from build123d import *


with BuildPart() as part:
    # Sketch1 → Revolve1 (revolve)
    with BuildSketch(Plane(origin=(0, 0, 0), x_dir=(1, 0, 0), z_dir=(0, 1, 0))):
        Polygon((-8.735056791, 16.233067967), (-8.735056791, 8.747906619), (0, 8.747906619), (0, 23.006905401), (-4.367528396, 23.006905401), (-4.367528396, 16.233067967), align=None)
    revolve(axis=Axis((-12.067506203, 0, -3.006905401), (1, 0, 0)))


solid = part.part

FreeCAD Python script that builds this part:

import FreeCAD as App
import Part
import Sketcher

V = App.Vector
Q = App.Units.Quantity


def add_polygon(sketch, points):
    """Adds a closed chain of lines whose ends are joined by coincident constraints."""
    first, n = sketch.GeometryCount, len(points)
    for a, b in zip(points, points[1:] + points[:1]):
        sketch.addGeometry(Part.LineSegment(App.Vector(*a, 0), App.Vector(*b, 0)), False)
    for i in range(n):
        sketch.addConstraint(Sketcher.Constraint("Coincident", first + i, 2, first + (i + 1) % n, 1))

doc = App.newDocument("Part")
body = doc.addObject("PartDesign::Body", "Body")

sketch1 = doc.addObject("Sketcher::SketchObject", "Sketch")
body.addObject(sketch1)
sketch1.AttachmentSupport = (doc.XZ_Plane, [""])
sketch1.MapMode = "FlatFace"
add_polygon(sketch1, [(-8.7, -16.2), (-8.7, -8.7), (0, -8.7), (0, -23), (-4.4, -23), (-4.4, -16.2)])
sketch1.addGeometry(Part.LineSegment(V(-8.7, -3, 0), V(0, -3, 0)), True)
sketch1.addConstraint([
    Sketcher.Constraint("Vertical", 0),
    Sketcher.Constraint("Horizontal", 1),
    Sketcher.Constraint("Vertical", 2),
    Sketcher.Constraint("Horizontal", 3),
    Sketcher.Constraint("Vertical", 4),
    Sketcher.Constraint("Horizontal", 5),
    Sketcher.Constraint("Horizontal", 6),
    Sketcher.Constraint("PointOnObject", 1, 2, -2),
    Sketcher.Constraint("PointOnObject", 6, 2, -2),
    Sketcher.Constraint("Vertical", 5, 2, 6, 1),
    Sketcher.Constraint("Equal", 3, 5),
    Sketcher.Constraint("DistanceY", 3, 2, 6, 1, Q("20 mm")),
    Sketcher.Constraint("DistanceY", 2, 2, 2, 1, Q("14.258999 mm")),
    Sketcher.Constraint("DistanceX", 3, 2, 3, 1, Q("4.367528 mm")),
    Sketcher.Constraint("DistanceY", 0, 1, 0, 2, Q("7.485161 mm")),
    Sketcher.Constraint("DistanceY", 0, 2, -1, 1, Q("8.747907 mm")),
])
revolution = doc.addObject("PartDesign::Revolution", "Revolution")
body.addObject(revolution)
revolution.Profile = sketch1
revolution.ReferenceAxis = (sketch1, ["Axis0"])
revolution.Angle = 360

doc.recompute()
